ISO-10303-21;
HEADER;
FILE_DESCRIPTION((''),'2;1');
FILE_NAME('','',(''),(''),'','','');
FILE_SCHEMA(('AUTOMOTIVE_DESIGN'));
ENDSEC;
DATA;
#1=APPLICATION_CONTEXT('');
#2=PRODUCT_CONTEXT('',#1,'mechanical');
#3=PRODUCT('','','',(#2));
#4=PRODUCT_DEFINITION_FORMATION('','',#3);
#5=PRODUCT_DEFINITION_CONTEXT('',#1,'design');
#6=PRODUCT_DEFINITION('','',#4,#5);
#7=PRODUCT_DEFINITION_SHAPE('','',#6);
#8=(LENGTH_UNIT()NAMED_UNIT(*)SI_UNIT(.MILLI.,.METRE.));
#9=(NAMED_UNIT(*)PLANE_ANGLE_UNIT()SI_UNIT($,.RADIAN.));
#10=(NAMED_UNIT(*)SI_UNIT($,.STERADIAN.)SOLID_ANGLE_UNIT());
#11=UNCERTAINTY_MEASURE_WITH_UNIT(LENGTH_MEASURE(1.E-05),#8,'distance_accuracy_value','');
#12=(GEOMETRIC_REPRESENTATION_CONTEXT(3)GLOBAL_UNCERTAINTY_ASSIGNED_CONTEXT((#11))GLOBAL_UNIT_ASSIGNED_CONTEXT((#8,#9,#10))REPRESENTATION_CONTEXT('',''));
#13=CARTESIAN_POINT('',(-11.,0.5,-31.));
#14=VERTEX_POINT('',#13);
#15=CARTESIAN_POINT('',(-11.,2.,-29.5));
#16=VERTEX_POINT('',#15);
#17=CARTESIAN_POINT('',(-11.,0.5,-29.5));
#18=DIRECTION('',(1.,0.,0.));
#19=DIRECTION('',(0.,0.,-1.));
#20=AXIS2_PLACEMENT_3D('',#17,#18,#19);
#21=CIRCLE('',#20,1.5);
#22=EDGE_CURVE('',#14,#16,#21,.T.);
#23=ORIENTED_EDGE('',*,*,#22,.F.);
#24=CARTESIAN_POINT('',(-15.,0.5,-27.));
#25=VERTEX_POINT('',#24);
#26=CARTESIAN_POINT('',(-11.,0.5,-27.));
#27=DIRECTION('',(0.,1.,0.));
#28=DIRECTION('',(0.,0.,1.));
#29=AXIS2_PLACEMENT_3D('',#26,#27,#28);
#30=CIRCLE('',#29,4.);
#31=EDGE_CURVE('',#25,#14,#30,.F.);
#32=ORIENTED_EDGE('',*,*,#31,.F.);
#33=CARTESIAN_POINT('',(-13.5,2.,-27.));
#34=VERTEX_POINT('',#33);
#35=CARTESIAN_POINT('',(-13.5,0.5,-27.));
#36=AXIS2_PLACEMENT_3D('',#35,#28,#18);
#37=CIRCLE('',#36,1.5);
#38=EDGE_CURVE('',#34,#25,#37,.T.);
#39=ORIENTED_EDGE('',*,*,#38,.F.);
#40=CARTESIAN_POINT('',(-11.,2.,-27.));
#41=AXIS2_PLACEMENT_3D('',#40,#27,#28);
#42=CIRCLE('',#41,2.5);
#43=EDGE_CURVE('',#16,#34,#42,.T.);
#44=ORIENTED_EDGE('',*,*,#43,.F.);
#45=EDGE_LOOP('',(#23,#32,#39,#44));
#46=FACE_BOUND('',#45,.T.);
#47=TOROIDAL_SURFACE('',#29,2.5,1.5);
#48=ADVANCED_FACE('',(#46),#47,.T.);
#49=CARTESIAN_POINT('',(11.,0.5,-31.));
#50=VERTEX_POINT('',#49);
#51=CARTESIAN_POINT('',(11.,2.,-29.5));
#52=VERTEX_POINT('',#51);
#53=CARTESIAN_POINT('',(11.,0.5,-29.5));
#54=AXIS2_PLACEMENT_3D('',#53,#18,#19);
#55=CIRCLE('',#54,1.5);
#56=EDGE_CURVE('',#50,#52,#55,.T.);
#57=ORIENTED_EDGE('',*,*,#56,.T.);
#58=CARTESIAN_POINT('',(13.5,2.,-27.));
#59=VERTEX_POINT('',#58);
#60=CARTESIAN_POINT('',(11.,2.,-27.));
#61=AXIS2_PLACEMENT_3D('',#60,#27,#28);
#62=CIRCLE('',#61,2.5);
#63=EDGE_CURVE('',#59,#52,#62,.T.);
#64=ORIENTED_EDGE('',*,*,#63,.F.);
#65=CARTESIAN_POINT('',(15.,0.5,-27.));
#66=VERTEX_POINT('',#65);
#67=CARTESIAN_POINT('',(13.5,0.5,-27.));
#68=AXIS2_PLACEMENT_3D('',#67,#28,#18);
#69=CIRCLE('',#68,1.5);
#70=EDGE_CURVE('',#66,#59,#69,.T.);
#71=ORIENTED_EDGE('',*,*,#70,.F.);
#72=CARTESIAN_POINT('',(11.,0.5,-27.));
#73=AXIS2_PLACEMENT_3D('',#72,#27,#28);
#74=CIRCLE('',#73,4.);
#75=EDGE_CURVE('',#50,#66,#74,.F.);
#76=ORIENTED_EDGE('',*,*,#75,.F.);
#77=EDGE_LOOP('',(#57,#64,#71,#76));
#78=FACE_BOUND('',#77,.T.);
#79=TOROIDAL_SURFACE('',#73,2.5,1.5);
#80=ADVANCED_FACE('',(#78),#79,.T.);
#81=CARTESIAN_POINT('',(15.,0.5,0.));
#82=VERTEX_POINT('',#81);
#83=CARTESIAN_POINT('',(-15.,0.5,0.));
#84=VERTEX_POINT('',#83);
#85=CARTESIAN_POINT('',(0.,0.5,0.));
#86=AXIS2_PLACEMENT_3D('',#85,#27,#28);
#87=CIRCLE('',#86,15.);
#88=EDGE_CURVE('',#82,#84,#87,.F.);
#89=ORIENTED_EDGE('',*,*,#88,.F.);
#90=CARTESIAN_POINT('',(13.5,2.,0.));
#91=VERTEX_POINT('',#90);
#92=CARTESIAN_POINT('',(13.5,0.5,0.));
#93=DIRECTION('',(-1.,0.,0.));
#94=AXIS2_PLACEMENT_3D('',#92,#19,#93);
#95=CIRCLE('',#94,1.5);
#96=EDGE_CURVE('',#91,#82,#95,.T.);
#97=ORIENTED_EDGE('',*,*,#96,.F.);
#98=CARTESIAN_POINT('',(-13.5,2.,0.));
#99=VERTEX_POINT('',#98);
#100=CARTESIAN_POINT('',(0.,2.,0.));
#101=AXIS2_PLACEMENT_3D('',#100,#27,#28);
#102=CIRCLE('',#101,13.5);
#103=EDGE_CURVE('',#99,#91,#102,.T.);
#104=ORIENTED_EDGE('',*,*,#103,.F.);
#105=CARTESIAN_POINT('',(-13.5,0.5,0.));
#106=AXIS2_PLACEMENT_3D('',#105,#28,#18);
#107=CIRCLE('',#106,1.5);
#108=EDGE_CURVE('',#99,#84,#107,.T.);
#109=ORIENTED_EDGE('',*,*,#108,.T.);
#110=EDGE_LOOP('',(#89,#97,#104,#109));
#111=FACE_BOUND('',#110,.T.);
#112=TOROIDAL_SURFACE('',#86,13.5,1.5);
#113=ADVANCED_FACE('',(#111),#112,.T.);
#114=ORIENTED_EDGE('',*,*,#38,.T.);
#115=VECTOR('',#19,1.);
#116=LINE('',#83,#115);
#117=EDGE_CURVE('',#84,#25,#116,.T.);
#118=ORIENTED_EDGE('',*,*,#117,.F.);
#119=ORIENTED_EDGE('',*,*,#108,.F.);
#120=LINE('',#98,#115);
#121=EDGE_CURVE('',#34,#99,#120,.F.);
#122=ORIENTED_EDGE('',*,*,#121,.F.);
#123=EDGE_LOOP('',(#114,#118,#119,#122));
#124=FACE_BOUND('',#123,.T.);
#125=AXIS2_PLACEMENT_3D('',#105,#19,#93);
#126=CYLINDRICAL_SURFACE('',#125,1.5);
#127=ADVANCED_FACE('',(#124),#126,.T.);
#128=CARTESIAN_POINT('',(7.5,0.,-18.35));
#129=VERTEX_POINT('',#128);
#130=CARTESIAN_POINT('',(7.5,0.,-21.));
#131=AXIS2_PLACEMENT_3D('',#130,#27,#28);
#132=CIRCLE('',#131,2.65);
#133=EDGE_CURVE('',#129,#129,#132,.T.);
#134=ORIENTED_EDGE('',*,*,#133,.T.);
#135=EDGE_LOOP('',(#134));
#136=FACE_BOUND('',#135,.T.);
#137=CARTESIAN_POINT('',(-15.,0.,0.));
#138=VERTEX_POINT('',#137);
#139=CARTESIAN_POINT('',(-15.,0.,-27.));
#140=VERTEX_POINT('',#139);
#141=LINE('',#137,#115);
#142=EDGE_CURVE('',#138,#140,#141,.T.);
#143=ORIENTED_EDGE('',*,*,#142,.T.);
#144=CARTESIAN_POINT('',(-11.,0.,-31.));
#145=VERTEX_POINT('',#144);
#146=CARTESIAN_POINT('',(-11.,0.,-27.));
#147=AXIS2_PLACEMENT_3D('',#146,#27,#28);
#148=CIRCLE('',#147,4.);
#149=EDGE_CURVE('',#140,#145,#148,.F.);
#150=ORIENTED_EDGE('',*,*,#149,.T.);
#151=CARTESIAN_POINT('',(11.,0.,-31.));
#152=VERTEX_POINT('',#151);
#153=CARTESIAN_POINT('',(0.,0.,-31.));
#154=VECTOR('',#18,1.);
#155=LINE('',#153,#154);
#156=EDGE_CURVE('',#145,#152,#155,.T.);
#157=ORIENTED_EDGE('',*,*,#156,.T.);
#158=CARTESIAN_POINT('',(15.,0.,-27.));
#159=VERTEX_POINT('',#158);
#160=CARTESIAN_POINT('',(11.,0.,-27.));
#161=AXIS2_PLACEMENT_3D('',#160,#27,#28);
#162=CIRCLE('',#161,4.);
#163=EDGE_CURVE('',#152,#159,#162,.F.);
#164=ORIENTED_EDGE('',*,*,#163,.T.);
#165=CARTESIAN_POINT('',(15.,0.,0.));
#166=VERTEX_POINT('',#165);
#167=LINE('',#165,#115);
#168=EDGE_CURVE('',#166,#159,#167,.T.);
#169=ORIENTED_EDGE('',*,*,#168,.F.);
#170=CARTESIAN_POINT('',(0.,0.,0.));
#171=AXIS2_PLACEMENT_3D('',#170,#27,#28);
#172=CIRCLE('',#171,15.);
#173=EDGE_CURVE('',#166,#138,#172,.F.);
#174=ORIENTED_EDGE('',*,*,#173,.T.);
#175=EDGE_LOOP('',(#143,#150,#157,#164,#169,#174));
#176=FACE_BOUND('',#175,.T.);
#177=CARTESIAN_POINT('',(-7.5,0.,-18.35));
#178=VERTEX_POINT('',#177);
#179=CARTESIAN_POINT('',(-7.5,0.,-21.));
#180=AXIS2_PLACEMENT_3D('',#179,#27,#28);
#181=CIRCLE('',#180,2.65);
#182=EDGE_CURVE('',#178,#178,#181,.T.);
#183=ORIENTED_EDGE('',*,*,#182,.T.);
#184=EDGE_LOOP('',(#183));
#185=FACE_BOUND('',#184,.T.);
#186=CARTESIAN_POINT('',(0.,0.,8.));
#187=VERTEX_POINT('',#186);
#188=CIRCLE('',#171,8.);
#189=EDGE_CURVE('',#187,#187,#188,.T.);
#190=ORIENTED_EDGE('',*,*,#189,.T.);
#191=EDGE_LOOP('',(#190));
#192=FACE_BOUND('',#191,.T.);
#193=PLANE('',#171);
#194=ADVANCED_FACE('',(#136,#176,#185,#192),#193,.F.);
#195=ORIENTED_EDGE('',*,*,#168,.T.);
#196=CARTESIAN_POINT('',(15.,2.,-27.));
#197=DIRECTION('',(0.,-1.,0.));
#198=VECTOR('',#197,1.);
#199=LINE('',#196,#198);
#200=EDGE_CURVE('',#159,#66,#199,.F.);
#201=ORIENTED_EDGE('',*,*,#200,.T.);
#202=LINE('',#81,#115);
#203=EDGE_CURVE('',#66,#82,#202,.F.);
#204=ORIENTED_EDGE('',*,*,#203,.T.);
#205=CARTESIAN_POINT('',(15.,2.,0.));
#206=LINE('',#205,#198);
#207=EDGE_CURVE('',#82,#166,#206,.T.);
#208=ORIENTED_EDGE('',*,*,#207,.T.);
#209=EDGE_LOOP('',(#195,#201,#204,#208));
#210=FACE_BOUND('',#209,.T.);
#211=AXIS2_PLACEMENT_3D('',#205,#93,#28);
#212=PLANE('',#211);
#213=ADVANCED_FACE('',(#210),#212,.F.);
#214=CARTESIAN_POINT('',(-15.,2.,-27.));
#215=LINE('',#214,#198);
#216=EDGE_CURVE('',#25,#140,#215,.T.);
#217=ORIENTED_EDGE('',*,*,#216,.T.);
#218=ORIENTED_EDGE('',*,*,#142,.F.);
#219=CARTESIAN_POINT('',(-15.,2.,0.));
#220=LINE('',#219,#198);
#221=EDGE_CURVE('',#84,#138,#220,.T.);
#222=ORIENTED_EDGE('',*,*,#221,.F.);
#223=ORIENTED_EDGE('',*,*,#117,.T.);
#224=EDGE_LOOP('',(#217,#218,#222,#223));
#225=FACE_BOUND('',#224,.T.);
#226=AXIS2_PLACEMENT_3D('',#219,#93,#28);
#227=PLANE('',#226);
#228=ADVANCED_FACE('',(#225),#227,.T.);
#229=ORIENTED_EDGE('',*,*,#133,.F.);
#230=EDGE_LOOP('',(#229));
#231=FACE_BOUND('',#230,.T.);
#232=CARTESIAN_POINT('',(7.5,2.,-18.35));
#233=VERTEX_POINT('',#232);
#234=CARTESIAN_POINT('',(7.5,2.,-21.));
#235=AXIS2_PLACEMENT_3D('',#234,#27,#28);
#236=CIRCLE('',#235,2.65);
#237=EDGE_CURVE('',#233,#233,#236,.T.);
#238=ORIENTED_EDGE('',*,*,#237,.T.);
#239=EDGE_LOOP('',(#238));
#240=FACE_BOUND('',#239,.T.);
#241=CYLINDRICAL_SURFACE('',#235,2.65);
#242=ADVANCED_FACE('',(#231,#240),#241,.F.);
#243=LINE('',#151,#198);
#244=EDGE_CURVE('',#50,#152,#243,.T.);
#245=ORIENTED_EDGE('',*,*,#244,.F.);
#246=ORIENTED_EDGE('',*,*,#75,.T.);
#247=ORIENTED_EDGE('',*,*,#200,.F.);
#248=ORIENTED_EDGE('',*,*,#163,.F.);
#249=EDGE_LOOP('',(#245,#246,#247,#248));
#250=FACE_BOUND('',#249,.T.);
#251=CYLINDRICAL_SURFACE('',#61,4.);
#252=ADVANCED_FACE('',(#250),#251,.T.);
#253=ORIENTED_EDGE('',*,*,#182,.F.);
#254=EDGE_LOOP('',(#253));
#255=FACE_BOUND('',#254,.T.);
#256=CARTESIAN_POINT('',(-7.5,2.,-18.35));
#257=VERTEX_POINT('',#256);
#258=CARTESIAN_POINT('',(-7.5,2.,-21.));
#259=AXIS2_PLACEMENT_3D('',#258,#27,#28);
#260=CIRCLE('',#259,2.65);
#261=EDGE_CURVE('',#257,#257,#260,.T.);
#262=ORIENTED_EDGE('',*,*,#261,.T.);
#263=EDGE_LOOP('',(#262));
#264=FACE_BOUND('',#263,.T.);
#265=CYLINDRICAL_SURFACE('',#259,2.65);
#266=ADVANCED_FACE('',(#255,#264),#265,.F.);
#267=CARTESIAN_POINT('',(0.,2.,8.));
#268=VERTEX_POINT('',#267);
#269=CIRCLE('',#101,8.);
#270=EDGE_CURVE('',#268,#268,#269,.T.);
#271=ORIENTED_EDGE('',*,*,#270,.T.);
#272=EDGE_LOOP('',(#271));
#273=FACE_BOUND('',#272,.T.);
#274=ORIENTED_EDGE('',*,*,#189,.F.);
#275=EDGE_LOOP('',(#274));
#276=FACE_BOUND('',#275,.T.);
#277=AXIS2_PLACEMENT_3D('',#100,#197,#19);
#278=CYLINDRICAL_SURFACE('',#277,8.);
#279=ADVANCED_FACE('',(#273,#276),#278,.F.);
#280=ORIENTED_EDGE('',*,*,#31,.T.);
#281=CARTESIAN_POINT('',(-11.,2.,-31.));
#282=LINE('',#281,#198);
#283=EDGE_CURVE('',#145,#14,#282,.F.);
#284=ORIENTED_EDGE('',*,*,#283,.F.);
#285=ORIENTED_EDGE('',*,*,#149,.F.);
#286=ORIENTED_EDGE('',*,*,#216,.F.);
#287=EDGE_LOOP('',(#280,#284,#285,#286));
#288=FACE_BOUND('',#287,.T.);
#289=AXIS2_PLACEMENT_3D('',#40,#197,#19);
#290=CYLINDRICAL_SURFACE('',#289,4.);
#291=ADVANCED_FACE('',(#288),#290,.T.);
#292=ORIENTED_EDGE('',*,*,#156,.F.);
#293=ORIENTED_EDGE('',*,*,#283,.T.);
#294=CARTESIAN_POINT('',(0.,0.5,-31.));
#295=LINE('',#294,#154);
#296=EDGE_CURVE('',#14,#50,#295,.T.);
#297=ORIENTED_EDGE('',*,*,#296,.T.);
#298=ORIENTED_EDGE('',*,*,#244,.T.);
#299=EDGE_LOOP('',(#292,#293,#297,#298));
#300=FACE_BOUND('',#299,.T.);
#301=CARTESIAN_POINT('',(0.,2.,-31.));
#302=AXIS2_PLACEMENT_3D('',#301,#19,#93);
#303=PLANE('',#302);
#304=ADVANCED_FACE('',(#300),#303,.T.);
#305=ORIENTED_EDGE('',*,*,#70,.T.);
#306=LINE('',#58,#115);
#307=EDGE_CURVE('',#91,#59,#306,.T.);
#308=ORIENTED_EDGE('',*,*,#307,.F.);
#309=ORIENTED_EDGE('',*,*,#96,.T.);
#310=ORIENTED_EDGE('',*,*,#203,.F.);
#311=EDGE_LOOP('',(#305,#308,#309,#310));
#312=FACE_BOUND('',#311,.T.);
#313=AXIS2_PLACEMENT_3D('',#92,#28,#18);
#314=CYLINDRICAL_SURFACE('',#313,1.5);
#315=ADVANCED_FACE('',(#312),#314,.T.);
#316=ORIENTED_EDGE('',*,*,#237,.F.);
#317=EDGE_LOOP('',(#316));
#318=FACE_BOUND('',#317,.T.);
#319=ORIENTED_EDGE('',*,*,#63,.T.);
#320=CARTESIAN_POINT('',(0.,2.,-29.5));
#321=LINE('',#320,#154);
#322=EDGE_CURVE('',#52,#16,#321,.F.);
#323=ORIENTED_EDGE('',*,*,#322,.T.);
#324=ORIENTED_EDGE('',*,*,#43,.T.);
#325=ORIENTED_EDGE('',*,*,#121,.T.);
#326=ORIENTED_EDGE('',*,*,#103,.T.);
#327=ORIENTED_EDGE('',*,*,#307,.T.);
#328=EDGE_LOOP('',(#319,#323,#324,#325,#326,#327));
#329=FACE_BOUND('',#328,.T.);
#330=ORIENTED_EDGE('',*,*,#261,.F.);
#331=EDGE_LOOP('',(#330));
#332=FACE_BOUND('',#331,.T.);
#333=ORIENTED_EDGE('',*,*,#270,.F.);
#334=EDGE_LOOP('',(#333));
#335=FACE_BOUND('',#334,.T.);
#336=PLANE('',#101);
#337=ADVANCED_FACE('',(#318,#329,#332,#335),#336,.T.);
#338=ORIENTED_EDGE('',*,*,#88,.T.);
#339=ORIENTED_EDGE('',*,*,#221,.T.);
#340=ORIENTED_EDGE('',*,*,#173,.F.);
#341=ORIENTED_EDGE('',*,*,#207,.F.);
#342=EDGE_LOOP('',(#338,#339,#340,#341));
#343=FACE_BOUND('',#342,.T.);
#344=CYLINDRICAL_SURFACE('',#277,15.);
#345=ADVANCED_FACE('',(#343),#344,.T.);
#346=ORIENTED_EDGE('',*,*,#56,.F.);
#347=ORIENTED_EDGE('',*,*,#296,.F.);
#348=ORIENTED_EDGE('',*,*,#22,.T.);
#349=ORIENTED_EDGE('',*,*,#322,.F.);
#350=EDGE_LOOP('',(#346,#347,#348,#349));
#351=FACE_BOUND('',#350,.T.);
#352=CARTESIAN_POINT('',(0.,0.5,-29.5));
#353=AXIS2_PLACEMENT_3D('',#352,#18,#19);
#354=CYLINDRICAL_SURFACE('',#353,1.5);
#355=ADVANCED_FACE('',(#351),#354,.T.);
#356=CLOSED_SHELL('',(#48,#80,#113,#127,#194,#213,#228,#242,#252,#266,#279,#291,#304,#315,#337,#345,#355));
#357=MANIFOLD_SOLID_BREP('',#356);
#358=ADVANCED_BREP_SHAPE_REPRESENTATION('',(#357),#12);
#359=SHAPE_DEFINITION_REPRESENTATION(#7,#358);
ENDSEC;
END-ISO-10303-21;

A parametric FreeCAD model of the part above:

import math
import FreeCAD as App
import Part
import Sketcher
Q = App.Units.Quantity


def edges_at(feature, points):
    """Names of the edges that pass closest to the given points."""
    edges = feature.Shape.Edges
    near = lambda p: min(range(len(edges)), key=lambda i: edges[i].distToShape(Part.Vertex(*p))[0])
    return sorted({f"Edge{near(p) + 1}" for p in points})

doc = App.newDocument("Part")
body = doc.addObject("PartDesign::Body", "Body")

# Sketch on XZ plane
sketch1 = body.newObject("Sketcher::SketchObject", "Sketch")
sketch1.AttachmentSupport = (doc.getObject("XZ_Plane"), [""])
sketch1.MapMode = "FlatFace"
sketch1.addGeometry([
    Part.LineSegment(App.Vector(-15, -31, 0), App.Vector(-15, 0, 0)),  # 0
    Part.ArcOfCircle(Part.Circle(App.Vector(0, 0, 0), App.Vector(0, 0, 1), 15), math.radians(0), math.radians(180)),  # 1
    Part.LineSegment(App.Vector(15, 0, 0), App.Vector(15, -31, 0)),  # 2
    Part.LineSegment(App.Vector(15, -31, 0), App.Vector(-15, -31, 0)),  # 3
    Part.Circle(App.Vector(0, 0, 0), App.Vector(0, 0, 1), 8),  # 4
], False)
sketch1.addConstraint([
    Sketcher.Constraint("Tangent", 0, 2, 1, 2),
    Sketcher.Constraint("Tangent", 1, 1, 2, 1),
    Sketcher.Constraint("Coincident", 2, 2, 3, 1),
    Sketcher.Constraint("Coincident", 3, 2, 0, 1),
    Sketcher.Constraint("Vertical", 0),
    Sketcher.Constraint("Vertical", 2),
    Sketcher.Constraint("Horizontal", 3),
    Sketcher.Constraint("Coincident", 1, 3, -1, 1),
    Sketcher.Constraint("Coincident", 4, 3, -1, 1),
    Sketcher.Constraint("Diameter", 4, Q("16 mm")),
    Sketcher.Constraint("Radius", 1, Q("15 mm")),
    Sketcher.Constraint("DistanceY", 0, 1, 0, 2, Q("31 mm")),
])
pad1 = body.newObject("PartDesign::Pad", "Pad")
pad1.Profile = sketch1
pad1.Length = 2
pad1.Reversed = True

# Sketch on XZ plane
sketch2 = body.newObject("Sketcher::SketchObject", "Sketch001")
sketch2.AttachmentSupport = (doc.getObject("XZ_Plane"), [""])
sketch2.MapMode = "FlatFace"
sketch2.AttachmentOffset = App.Placement(App.Vector(0, 0, -2), App.Rotation())
sketch2.addGeometry([
    Part.Circle(App.Vector(-7.5, -21, 0), App.Vector(0, 0, 1), 2.6),
    Part.Circle(App.Vector(7.5, -21, 0), App.Vector(0, 0, 1), 2.6),
], False)
sketch2.addConstraint([
    Sketcher.Constraint("Equal", 0, 1),
    Sketcher.Constraint("Symmetric", 0, 3, 1, 3, -2),
    Sketcher.Constraint("Diameter", 0, Q("5.3 mm")),
    Sketcher.Constraint("DistanceY", 0, 3, -1, 1, Q("21 mm")),
    Sketcher.Constraint("DistanceX", 0, 3, 1, 3, Q("15 mm")),
])
doc.recompute()
hole = body.newObject("PartDesign::Hole", "Hole")
hole.Profile = sketch2
hole.ThreadType = "None"
hole.Diameter = 5.3
hole.DepthType = "ThroughAll"
hole.Reversed = True
doc.recompute()

fillet = body.newObject("PartDesign::Fillet", "Fillet")
fillet.Base = (hole, edges_at(hole, [(-15, 1, -31), (15, 1, -31)]))
fillet.Radius = 4
doc.recompute()

fillet2 = body.newObject("PartDesign::Fillet", "Fillet001")
fillet2.Base = (fillet, edges_at(fillet, [
    (15, 2, -13.5),
    (-15, 2, -13.5),
    (0, 2, -31),
    (-13.828, 2, -29.828),
    (13.828, 2, -29.828),
    (0, 2, 15),
]))
fillet2.Radius = 1.5

doc.recompute()
